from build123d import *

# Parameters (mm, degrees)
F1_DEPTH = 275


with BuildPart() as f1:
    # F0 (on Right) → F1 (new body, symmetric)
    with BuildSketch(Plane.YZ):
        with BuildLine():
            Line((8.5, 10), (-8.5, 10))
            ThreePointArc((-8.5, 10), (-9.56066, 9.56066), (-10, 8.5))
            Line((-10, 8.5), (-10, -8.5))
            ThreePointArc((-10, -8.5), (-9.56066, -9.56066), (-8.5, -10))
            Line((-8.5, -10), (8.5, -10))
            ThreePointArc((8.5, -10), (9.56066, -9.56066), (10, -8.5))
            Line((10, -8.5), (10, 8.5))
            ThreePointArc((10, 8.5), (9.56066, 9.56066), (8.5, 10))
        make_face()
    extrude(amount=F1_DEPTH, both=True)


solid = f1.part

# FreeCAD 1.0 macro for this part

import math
import FreeCAD as App
import Part
import Sketcher

V = App.Vector
Q = App.Units.Quantity

doc = App.newDocument("Part")
body = doc.addObject("PartDesign::Body", "Body")

# Sketch on YZ plane
sketch1 = doc.addObject("Sketcher::SketchObject", "Sketch")
body.addObject(sketch1)
sketch1.AttachmentSupport = (doc.YZ_Plane, [""])
sketch1.MapMode = "FlatFace"
sketch1.addGeometry(Part.LineSegment(V(8.5, 10, 0), V(-8.5, 10, 0)), False)
sketch1.addGeometry(Part.ArcOfCircle(Part.Circle(V(-8.5, 8.5, 0), V(0, 0, 1), 1.5), math.radians(90), math.radians(180)), False)
sketch1.addGeometry(Part.LineSegment(V(-10, 8.5, 0), V(-10, -8.5, 0)), False)
sketch1.addGeometry(Part.ArcOfCircle(Part.Circle(V(-8.5, -8.5, 0), V(0, 0, 1), 1.5), math.radians(-180), math.radians(-90)), False)
sketch1.addGeometry(Part.LineSegment(V(-8.5, -10, 0), V(8.5, -10, 0)), False)
sketch1.addGeometry(Part.ArcOfCircle(Part.Circle(V(8.5, -8.5, 0), V(0, 0, 1), 1.5), math.radians(-90), math.radians(0)), False)
sketch1.addGeometry(Part.LineSegment(V(10, -8.5, 0), V(10, 8.5, 0)), False)
sketch1.addGeometry(Part.ArcOfCircle(Part.Circle(V(8.5, 8.5, 0), V(0, 0, 1), 1.5), math.radians(0), math.radians(90)), False)
sketch1.addConstraint(Sketcher.Constraint("Tangent", 0, 2, 1, 1))
sketch1.addConstraint(Sketcher.Constraint("Tangent", 1, 2, 2, 1))
sketch1.addConstraint(Sketcher.Constraint("Tangent", 2, 2, 3, 1))
sketch1.addConstraint(Sketcher.Constraint("Tangent", 3, 2, 4, 1))
sketch1.addConstraint(Sketcher.Constraint("Tangent", 4, 2, 5, 1))
sketch1.addConstraint(Sketcher.Constraint("Tangent", 5, 2, 6, 1))
sketch1.addConstraint(Sketcher.Constraint("Tangent", 6, 2, 7, 1))
sketch1.addConstraint(Sketcher.Constraint("Tangent", 7, 2, 0, 1))
sketch1.addConstraint(Sketcher.Constraint("Horizontal", 0))
sketch1.addConstraint(Sketcher.Constraint("Vertical", 2))
sketch1.addConstraint(Sketcher.Constraint("Horizontal", 4))
sketch1.addConstraint(Sketcher.Constraint("Vertical", 6))
sketch1.addConstraint(Sketcher.Constraint("Equal", 1, 3))
sketch1.addConstraint(Sketcher.Constraint("Equal", 3, 5))
sketch1.addConstraint(Sketcher.Constraint("Equal", 5, 7))
sketch1.addConstraint(Sketcher.Constraint("Symmetric", 1, 3, 5, 3, -1, 1))
sketch1.addConstraint(Sketcher.Constraint("Equal", 4, 2))
sketch1.addConstraint(Sketcher.Constraint("Radius", 1, Q("1.500001 mm")))
sketch1.addConstraint(Sketcher.Constraint("DistanceX", 0, 2, 0, 1, Q("17 mm")))
pad1 = doc.addObject("PartDesign::Pad", "Pad")
body.addObject(pad1)
pad1.Profile = sketch1
pad1.Length = 550
pad1.Midplane = True

doc.recompute()
